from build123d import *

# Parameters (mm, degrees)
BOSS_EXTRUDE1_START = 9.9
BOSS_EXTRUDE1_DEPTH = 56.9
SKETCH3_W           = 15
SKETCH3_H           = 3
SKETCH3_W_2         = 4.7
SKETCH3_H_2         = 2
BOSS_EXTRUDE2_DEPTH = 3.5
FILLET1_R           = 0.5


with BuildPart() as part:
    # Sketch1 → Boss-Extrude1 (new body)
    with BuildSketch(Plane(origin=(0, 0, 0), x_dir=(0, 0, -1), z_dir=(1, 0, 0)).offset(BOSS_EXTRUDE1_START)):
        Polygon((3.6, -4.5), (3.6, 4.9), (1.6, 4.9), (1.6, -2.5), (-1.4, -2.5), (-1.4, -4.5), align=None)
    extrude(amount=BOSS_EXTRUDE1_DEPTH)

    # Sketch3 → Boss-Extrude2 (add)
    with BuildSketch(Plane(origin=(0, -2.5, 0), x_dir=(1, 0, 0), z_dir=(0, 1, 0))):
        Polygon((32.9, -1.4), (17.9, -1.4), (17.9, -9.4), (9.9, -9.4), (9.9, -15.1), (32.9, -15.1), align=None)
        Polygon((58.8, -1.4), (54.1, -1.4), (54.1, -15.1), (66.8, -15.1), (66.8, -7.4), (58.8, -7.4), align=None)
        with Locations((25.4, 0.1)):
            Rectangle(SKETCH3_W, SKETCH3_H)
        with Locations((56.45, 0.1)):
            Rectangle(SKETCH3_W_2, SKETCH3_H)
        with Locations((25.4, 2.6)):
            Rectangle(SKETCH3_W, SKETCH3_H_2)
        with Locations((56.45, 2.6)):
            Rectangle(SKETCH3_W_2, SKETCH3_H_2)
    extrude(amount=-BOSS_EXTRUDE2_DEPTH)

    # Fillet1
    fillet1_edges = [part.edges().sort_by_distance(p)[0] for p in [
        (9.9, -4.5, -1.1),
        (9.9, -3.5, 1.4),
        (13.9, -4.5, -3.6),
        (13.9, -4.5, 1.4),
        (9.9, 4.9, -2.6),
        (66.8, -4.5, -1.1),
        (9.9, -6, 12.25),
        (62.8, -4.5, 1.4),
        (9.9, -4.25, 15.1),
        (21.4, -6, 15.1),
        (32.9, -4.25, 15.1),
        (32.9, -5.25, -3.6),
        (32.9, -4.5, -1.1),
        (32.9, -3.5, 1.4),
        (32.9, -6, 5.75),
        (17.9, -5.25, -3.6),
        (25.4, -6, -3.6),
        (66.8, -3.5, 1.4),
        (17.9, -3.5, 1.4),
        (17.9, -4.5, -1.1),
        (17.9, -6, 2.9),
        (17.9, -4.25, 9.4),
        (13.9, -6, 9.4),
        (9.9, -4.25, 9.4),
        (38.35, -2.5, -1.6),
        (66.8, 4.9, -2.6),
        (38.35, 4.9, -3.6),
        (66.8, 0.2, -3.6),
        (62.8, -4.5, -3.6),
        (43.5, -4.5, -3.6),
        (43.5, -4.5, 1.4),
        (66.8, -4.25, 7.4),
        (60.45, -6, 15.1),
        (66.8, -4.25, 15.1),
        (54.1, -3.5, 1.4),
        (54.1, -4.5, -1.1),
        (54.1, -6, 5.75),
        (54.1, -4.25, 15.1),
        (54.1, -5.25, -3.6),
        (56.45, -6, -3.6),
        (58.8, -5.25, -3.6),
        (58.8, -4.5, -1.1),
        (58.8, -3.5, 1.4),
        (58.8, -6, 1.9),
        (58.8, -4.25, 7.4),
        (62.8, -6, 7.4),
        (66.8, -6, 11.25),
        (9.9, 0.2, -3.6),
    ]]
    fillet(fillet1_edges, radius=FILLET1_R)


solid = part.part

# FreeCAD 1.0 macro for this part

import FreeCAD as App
import Part
import Sketcher
Q = App.Units.Quantity


def edges_at(feature, points):
    """Names of the edges that pass closest to the given points."""
    edges = feature.Shape.Edges
    near = lambda p: min(range(len(edges)), key=lambda i: edges[i].distToShape(Part.Vertex(*p))[0])
    return sorted({f"Edge{near(p) + 1}" for p in points})

doc = App.newDocument("Part")
body = doc.addObject("PartDesign::Body", "Body")

sketch1 = body.newObject("Sketcher::SketchObject", "Sketch")
sketch1.AttachmentSupport = (doc.getObject("YZ_Plane"), [""])
sketch1.MapMode = "FlatFace"
sketch1.AttachmentOffset = App.Placement(App.Vector(0, 0, 9.9), App.Rotation())
sketch1.addGeometry(Part.LineSegment(App.Vector(-4.5, -3.6, 0), App.Vector(4.9, -3.6, 0)), False)
sketch1.addGeometry(Part.LineSegment(App.Vector(4.9, -3.6, 0), App.Vector(4.9, -1.6, 0)), False)
sketch1.addGeometry(Part.LineSegment(App.Vector(4.9, -1.6, 0), App.Vector(-2.5, -1.6, 0)), False)
sketch1.addGeometry(Part.LineSegment(App.Vector(-2.5, -1.6, 0), App.Vector(-2.5, 1.4, 0)), False)
sketch1.addGeometry(Part.LineSegment(App.Vector(-2.5, 1.4, 0), App.Vector(-4.5, 1.4, 0)), False)
sketch1.addGeometry(Part.LineSegment(App.Vector(-4.5, 1.4, 0), App.Vector(-4.5, -3.6, 0)), False)
sketch1.addConstraint(Sketcher.Constraint("Coincident", 0, 2, 1, 1))
sketch1.addConstraint(Sketcher.Constraint("Coincident", 1, 2, 2, 1))
sketch1.addConstraint(Sketcher.Constraint("Coincident", 2, 2, 3, 1))
sketch1.addConstraint(Sketcher.Constraint("Coincident", 3, 2, 4, 1))
sketch1.addConstraint(Sketcher.Constraint("Coincident", 4, 2, 5, 1))
sketch1.addConstraint(Sketcher.Constraint("Coincident", 5, 2, 0, 1))
sketch1.addConstraint(Sketcher.Constraint("Horizontal", 0))
sketch1.addConstraint(Sketcher.Constraint("Vertical", 1))
sketch1.addConstraint(Sketcher.Constraint("Horizontal", 2))
sketch1.addConstraint(Sketcher.Constraint("Vertical", 3))
sketch1.addConstraint(Sketcher.Constraint("Horizontal", 4))
sketch1.addConstraint(Sketcher.Constraint("Vertical", 5))
sketch1.addConstraint(Sketcher.Constraint("Equal", 4, 1))
sketch1.addConstraint(Sketcher.Constraint("DistanceX", 4, 2, 4, 1, Q("2 mm")))
sketch1.addConstraint(Sketcher.Constraint("DistanceY", 3, 1, 3, 2, Q("3 mm")))
sketch1.addConstraint(Sketcher.Constraint("DistanceX", 0, 1, 0, 2, Q("9.4 mm")))
sketch1.addConstraint(Sketcher.Constraint("DistanceX", -1, 1, 0, 2, Q("4.9 mm")))
sketch1.addConstraint(Sketcher.Constraint("DistanceY", 0, 2, -1, 1, Q("3.6 mm")))
pad1 = body.newObject("PartDesign::Pad", "Pad")
pad1.Profile = sketch1
pad1.Length = 56.9

sketch2 = body.newObject("Sketcher::SketchObject", "Sketch001")
sketch2.AttachmentSupport = (doc.getObject("XZ_Plane"), [""])
sketch2.MapMode = "FlatFace"
sketch2.AttachmentOffset = App.Placement(App.Vector(0, 0, 2.5), App.Rotation())
sketch2.addGeometry(Part.LineSegment(App.Vector(17.9, 9.4, 0), App.Vector(9.9, 9.4, 0)), False)
sketch2.addGeometry(Part.LineSegment(App.Vector(9.9, 9.4, 0), App.Vector(9.9, 15.1, 0)), False)
sketch2.addGeometry(Part.LineSegment(App.Vector(9.9, 15.1, 0), App.Vector(32.9, 15.1, 0)), False)
sketch2.addGeometry(Part.LineSegment(App.Vector(32.9, 15.1, 0), App.Vector(32.9, -3.6, 0)), False)
sketch2.addGeometry(Part.LineSegment(App.Vector(32.9, -3.6, 0), App.Vector(17.9, -3.6, 0)), False)
sketch2.addGeometry(Part.LineSegment(App.Vector(17.9, -3.6, 0), App.Vector(17.9, 9.4, 0)), False)
sketch2.addGeometry(Part.LineSegment(App.Vector(54.1, 15.1, 0), App.Vector(66.8, 15.1, 0)), False)
sketch2.addGeometry(Part.LineSegment(App.Vector(66.8, 15.1, 0), App.Vector(66.8, 7.4, 0)), False)
sketch2.addGeometry(Part.LineSegment(App.Vector(66.8, 7.4, 0), App.Vector(58.8, 7.4, 0)), False)
sketch2.addGeometry(Part.LineSegment(App.Vector(58.8, 7.4, 0), App.Vector(58.8, -3.6, 0)), False)
sketch2.addGeometry(Part.LineSegment(App.Vector(58.8, -3.6, 0), App.Vector(54.1, -3.6, 0)), False)
sketch2.addGeometry(Part.LineSegment(App.Vector(54.1, -3.6, 0), App.Vector(54.1, 15.1, 0)), False)
sketch2.addConstraint(Sketcher.Constraint("Coincident", 0, 2, 1, 1))
sketch2.addConstraint(Sketcher.Constraint("Coincident", 1, 2, 2, 1))
sketch2.addConstraint(Sketcher.Constraint("Coincident", 2, 2, 3, 1))
sketch2.addConstraint(Sketcher.Constraint("Coincident", 3, 2, 4, 1))
sketch2.addConstraint(Sketcher.Constraint("Coincident", 4, 2, 5, 1))
sketch2.addConstraint(Sketcher.Constraint("Coincident", 5, 2, 0, 1))
sketch2.addConstraint(Sketcher.Constraint("Coincident", 6, 2, 7, 1))
sketch2.addConstraint(Sketcher.Constraint("Coincident", 7, 2, 8, 1))
sketch2.addConstraint(Sketcher.Constraint("Coincident", 8, 2, 9, 1))
sketch2.addConstraint(Sketcher.Constraint("Coincident", 9, 2, 10, 1))
sketch2.addConstraint(Sketcher.Constraint("Coincident", 10, 2, 11, 1))
sketch2.addConstraint(Sketcher.Constraint("Coincident", 11, 2, 6, 1))
sketch2.addConstraint(Sketcher.Constraint("Horizontal", 0))
sketch2.addConstraint(Sketcher.Constraint("Vertical", 1))
sketch2.addConstraint(Sketcher.Constraint("Horizontal", 2))
sketch2.addConstraint(Sketcher.Constraint("Vertical", 3))
sketch2.addConstraint(Sketcher.Constraint("Horizontal", 4))
sketch2.addConstraint(Sketcher.Constraint("Vertical", 5))
sketch2.addConstraint(Sketcher.Constraint("Horizontal", 6))
sketch2.addConstraint(Sketcher.Constraint("Vertical", 7))
sketch2.addConstraint(Sketcher.Constraint("Horizontal", 8))
sketch2.addConstraint(Sketcher.Constraint("Vertical", 9))
sketch2.addConstraint(Sketcher.Constraint("Horizontal", 10))
sketch2.addConstraint(Sketcher.Constraint("Vertical", 11))
sketch2.addConstraint(Sketcher.Constraint("Horizontal", 2, 2, 6, 2))
sketch2.addConstraint(Sketcher.Constraint("Horizontal", 4, 2, 9, 2))
sketch2.addConstraint(Sketcher.Constraint("Equal", 0, 8))
sketch2.addConstraint(Sketcher.Constraint("DistanceX", 0, 2, 0, 1, Q("8 mm")))
sketch2.addConstraint(Sketcher.Constraint("DistanceX", 2, 1, 2, 2, Q("23 mm")))
sketch2.addConstraint(Sketcher.Constraint("DistanceY", 5, 1, 5, 2, Q("13 mm")))
sketch2.addConstraint(Sketcher.Constraint("DistanceY", 9, 2, 9, 1, Q("11 mm")))
sketch2.addConstraint(Sketcher.Constraint("DistanceX", 6, 1, 6, 2, Q("12.7 mm")))
sketch2.addConstraint(Sketcher.Constraint("DistanceY", 1, 1, 1, 2, Q("5.7 mm")))
sketch2.addConstraint(Sketcher.Constraint("DistanceX", -1, 1, 0, 2, Q("9.9 mm")))
sketch2.addConstraint(Sketcher.Constraint("DistanceY", -1, 1, 0, 2, Q("9.4 mm")))
sketch2.addConstraint(Sketcher.Constraint("DistanceX", -1, 1, 6, 2, Q("66.8 mm")))
pad2 = body.newObject("PartDesign::Pad", "Pad001")
pad2.Profile = sketch2
pad2.Length = 3.5
doc.recompute()

fillet = body.newObject("PartDesign::Fillet", "Fillet")
fillet.Base = (pad2, edges_at(pad2, [
    (9.9, -4.5, -1.1),
    (9.9, -3.5, 1.4),
    (13.9, -4.5, -3.6),
    (13.9, -4.5, 1.4),
    (9.9, 4.9, -2.6),
    (66.8, -4.5, -1.1),
    (9.9, -6, 12.25),
    (62.8, -4.5, 1.4),
    (9.9, -4.25, 15.1),
    (21.4, -6, 15.1),
    (32.9, -4.25, 15.1),
    (32.9, -5.25, -3.6),
    (32.9, -4.5, -1.1),
    (32.9, -3.5, 1.4),
    (32.9, -6, 5.75),
    (17.9, -5.25, -3.6),
    (25.4, -6, -3.6),
    (66.8, -3.5, 1.4),
    (17.9, -3.5, 1.4),
    (17.9, -4.5, -1.1),
    (17.9, -6, 2.9),
    (17.9, -4.25, 9.4),
    (13.9, -6, 9.4),
    (9.9, -4.25, 9.4),
    (38.35, -2.5, -1.6),
    (66.8, 4.9, -2.6),
    (38.35, 4.9, -3.6),
    (66.8, 0.2, -3.6),
    (62.8, -4.5, -3.6),
    (43.5, -4.5, -3.6),
    (43.5, -4.5, 1.4),
    (66.8, -4.25, 7.4),
    (60.45, -6, 15.1),
    (66.8, -4.25, 15.1),
    (54.1, -3.5, 1.4),
    (54.1, -4.5, -1.1),
    (54.1, -6, 5.75),
    (54.1, -4.25, 15.1),
    (54.1, -5.25, -3.6),
    (56.45, -6, -3.6),
    (58.8, -5.25, -3.6),
    (58.8, -4.5, -1.1),
    (58.8, -3.5, 1.4),
    (58.8, -6, 1.9),
    (58.8, -4.25, 7.4),
    (62.8, -6, 7.4),
    (66.8, -6, 11.25),
    (9.9, 0.2, -3.6),
]))
fillet.Radius = 0.5

doc.recompute()
